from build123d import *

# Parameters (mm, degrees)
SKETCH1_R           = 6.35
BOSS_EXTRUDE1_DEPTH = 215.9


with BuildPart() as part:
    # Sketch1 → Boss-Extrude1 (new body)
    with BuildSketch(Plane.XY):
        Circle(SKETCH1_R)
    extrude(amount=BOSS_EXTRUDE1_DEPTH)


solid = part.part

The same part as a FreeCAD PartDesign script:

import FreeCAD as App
import Part
import Sketcher

V = App.Vector
Q = App.Units.Quantity

doc = App.newDocument("Part")
body = doc.addObject("PartDesign::Body", "Body")

# Sketch on XY plane
sketch1 = body.newObject("Sketcher::SketchObject", "Sketch")
sketch1.AttachmentSupport = (doc.getObject("XY_Plane"), [""])
sketch1.MapMode = "FlatFace"
sketch1.addGeometry(Part.Circle(V(0, 0, 0), V(0, 0, 1), 6), False)
sketch1.addConstraint([
    Sketcher.Constraint("Coincident", 0, 3, -1, 1),
    Sketcher.Constraint("Diameter", 0, Q("0.5 in")),
])
pad1 = body.newObject("PartDesign::Pad", "Pad")
pad1.Profile = sketch1
pad1.Length = Q("8.5 in")

doc.recompute()
